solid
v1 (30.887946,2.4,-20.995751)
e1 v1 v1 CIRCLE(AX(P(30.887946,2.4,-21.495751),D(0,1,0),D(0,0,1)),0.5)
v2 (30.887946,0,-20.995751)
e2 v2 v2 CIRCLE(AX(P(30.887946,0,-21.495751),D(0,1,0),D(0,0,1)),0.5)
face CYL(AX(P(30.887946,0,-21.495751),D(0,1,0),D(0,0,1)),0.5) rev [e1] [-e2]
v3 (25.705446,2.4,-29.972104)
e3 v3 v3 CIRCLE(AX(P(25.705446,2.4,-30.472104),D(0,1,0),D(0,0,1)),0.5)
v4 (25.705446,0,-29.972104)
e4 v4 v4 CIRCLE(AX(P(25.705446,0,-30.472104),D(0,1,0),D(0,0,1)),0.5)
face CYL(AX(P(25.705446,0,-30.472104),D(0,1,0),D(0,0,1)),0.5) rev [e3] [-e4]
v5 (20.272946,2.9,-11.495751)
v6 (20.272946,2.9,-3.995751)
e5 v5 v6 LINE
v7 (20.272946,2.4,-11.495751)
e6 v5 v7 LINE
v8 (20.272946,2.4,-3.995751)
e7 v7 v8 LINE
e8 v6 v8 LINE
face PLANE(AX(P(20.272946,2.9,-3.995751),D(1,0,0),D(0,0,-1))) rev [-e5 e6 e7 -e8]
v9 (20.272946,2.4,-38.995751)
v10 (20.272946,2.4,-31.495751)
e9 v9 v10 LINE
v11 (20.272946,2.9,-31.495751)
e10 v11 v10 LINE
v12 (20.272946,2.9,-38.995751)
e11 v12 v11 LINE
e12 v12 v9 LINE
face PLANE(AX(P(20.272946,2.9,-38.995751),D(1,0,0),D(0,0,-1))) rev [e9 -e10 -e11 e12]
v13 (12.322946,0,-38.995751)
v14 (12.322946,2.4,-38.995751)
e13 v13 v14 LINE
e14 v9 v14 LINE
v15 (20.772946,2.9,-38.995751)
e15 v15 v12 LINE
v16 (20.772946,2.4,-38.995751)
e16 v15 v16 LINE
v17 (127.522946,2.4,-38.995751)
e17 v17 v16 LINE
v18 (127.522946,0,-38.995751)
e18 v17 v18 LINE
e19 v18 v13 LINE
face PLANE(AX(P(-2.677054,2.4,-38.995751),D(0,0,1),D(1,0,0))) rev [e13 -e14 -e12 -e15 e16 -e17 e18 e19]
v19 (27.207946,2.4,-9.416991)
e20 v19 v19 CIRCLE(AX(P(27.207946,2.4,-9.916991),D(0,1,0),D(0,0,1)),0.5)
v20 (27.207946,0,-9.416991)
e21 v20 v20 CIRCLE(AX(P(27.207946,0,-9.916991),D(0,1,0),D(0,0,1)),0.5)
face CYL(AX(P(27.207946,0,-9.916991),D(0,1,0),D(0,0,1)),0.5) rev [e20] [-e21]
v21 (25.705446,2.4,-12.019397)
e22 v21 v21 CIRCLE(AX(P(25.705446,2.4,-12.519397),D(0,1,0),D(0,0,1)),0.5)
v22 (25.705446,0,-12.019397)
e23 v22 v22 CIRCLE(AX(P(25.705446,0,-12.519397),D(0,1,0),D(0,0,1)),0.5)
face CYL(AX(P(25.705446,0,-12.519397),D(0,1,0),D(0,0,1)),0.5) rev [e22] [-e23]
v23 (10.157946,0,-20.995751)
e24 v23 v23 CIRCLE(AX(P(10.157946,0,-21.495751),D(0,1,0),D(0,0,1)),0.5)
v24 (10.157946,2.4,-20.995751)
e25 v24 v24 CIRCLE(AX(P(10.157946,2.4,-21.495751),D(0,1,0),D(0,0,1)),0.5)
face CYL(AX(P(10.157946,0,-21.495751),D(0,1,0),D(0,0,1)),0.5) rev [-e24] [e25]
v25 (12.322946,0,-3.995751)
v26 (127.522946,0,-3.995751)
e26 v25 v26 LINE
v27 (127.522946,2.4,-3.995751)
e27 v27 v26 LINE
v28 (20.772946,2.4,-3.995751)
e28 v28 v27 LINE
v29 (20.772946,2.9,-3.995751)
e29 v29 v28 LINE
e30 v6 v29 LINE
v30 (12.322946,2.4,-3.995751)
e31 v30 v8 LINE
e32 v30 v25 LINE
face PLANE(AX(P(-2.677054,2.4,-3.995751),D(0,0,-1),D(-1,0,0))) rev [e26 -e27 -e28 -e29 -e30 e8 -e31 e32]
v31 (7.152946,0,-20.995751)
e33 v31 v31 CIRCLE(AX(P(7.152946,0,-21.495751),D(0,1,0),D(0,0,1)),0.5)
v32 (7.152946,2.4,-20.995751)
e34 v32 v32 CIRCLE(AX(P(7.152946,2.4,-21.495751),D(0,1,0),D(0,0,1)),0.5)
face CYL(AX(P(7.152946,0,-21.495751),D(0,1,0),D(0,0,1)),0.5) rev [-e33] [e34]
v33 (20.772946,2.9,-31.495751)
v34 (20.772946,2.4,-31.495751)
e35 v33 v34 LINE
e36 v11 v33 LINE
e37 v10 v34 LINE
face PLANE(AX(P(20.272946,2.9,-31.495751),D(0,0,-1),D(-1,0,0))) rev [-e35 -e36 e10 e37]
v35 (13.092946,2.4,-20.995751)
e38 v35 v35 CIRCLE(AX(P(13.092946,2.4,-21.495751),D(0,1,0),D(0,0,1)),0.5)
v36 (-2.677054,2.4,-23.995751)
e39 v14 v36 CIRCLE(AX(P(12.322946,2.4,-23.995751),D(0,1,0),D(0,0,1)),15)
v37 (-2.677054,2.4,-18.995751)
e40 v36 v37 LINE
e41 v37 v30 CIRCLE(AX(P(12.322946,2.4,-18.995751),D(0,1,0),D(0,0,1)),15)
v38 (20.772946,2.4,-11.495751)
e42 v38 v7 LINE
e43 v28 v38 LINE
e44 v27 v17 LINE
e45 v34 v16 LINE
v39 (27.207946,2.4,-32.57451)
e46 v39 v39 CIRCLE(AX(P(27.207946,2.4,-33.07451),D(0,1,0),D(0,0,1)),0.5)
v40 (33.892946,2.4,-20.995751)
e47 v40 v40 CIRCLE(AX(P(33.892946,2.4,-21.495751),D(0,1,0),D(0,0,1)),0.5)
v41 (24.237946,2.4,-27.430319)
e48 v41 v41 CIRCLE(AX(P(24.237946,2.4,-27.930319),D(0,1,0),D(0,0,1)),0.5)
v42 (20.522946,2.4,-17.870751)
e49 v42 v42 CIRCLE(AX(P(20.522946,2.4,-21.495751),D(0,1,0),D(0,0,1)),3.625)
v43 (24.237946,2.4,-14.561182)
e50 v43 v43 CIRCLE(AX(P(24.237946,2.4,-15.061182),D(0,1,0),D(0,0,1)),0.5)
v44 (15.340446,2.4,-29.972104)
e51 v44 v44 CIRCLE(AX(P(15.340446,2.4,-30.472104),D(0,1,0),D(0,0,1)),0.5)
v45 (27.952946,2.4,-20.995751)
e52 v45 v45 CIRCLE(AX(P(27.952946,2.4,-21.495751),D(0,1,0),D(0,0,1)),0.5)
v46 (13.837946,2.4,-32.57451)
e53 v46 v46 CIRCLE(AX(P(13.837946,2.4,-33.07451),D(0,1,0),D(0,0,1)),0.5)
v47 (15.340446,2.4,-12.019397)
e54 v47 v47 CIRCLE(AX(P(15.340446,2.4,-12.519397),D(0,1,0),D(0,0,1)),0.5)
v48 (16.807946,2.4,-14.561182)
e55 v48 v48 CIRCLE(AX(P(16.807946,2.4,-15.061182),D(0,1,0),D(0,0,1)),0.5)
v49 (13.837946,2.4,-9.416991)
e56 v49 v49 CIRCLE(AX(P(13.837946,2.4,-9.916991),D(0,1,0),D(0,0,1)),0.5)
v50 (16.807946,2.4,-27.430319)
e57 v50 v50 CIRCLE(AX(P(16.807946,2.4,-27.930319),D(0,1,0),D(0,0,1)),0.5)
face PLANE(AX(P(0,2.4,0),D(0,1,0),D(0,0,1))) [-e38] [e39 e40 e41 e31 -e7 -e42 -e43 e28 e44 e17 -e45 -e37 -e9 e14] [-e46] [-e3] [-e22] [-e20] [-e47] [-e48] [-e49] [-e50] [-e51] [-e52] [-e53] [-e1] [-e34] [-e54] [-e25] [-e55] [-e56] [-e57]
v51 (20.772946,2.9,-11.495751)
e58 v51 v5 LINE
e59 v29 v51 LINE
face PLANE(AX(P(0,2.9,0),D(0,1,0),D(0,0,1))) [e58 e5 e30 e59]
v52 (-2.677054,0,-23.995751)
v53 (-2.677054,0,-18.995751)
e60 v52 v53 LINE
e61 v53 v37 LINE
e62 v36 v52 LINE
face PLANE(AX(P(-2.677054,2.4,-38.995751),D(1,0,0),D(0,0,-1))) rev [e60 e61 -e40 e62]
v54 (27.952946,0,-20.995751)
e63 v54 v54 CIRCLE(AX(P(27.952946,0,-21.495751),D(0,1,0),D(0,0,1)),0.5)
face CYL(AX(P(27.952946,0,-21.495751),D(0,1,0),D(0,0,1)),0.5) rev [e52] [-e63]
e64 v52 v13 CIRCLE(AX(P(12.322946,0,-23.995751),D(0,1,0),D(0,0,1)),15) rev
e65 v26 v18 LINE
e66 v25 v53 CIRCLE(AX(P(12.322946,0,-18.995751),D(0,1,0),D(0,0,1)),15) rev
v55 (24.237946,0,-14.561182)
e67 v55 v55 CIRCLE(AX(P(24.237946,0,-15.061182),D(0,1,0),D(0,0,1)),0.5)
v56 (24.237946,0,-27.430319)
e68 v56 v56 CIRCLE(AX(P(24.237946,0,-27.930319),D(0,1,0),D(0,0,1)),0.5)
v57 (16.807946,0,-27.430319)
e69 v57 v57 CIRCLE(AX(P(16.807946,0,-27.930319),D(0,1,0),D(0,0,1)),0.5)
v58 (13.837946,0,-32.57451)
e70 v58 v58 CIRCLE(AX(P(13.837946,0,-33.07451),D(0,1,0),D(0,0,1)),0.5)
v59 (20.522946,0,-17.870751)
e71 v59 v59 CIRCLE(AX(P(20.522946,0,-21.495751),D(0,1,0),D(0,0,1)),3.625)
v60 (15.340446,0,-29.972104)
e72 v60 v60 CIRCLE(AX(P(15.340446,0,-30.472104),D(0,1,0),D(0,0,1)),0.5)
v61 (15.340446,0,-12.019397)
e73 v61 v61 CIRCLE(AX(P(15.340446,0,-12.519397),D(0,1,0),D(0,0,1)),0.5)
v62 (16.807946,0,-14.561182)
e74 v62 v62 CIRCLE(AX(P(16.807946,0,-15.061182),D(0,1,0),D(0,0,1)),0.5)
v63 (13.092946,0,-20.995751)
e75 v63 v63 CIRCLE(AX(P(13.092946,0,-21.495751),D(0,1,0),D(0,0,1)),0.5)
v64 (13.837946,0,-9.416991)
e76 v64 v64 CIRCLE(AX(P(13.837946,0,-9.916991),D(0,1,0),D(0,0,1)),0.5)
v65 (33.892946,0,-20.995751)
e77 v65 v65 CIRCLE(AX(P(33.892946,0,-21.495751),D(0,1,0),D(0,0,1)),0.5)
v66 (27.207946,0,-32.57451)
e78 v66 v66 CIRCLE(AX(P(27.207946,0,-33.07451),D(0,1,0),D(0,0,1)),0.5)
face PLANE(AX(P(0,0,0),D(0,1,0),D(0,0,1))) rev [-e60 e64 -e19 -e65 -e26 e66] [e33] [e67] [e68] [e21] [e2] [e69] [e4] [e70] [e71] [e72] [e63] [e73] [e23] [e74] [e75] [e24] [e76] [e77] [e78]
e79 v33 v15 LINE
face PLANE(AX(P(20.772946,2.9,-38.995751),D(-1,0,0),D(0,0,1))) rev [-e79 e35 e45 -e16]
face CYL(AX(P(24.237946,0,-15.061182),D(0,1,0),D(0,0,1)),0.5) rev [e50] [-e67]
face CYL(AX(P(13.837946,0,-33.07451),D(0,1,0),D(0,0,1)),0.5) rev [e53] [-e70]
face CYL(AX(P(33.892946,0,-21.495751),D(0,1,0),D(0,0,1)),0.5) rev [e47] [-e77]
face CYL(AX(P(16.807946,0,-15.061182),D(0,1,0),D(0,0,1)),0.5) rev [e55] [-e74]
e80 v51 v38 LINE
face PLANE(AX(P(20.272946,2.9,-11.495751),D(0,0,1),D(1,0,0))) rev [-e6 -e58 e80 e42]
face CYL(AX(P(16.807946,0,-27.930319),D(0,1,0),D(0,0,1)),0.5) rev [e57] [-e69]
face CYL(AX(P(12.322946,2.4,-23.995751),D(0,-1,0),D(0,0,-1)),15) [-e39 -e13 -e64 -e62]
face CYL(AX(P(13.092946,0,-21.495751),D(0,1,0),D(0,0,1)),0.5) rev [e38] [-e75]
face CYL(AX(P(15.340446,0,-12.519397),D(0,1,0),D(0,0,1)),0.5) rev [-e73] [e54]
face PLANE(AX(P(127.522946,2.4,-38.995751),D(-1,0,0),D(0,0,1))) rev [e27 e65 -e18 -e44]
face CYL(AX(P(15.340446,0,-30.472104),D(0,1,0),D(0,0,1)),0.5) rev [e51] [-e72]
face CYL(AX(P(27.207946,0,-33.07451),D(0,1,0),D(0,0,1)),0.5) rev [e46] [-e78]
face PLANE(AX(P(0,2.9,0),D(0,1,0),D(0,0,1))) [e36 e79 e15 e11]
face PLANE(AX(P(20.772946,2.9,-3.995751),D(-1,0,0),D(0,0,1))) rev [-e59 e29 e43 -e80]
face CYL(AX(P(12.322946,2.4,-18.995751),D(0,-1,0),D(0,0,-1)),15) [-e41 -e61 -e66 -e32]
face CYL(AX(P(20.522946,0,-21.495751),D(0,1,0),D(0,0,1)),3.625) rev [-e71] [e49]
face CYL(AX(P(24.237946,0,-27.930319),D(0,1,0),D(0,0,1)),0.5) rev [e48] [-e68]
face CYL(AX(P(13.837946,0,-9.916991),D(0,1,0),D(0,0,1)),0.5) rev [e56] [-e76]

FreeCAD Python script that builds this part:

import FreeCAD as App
import Part
import Sketcher


def edges_at(feature, points):
    """Names of the edges that pass closest to the given points."""
    edges = feature.Shape.Edges
    near = lambda p: min(range(len(edges)), key=lambda i: edges[i].distToShape(Part.Vertex(*p))[0])
    return sorted({f"Edge{near(p) + 1}" for p in points})

doc = App.newDocument("Part")
params = doc.addObject("Spreadsheet::Sheet", "Params")
for row, (alias, value) in enumerate([
    ("sketch1_height", "35 mm"),
    ("sketch1_width", "130.2 mm"),
    ("pad1_length", "2.4 mm"),
    ("sketch2_diameter", "1 mm"),
    ("sketch2_diameter2", "7.25 mm"),
    ("pocket1_length", "2.4 mm"),
    ("sketch3_width", "0.5 mm"),
    ("sketch3_height", "7.5 mm"),
    ("pad2_length", "0.5 mm"),
    ("fillet_radius", "15 mm"),
], start=1):
    params.set(f"A{row}", alias)
    params.set(f"B{row}", "=" + value)
    params.setAlias(f"B{row}", alias)

body = doc.addObject("PartDesign::Body", "Body")

# Sketch on XZ plane
sketch1 = doc.addObject("Sketcher::SketchObject", "Sketch")
body.addObject(sketch1)
sketch1.AttachmentSupport = (doc.XZ_Plane, [""])
sketch1.MapMode = "FlatFace"
sketch1.addGeometry([
    Part.LineSegment(App.Vector(-3, -39, 0), App.Vector(-3, -4, 0)),
    Part.LineSegment(App.Vector(-3, -4, 0), App.Vector(128, -4, 0)),
    Part.LineSegment(App.Vector(128, -4, 0), App.Vector(128, -39, 0)),
    Part.LineSegment(App.Vector(128, -39, 0), App.Vector(-3, -39, 0)),
], False)
sketch1.addConstraint([
    Sketcher.Constraint("Coincident", 0, 2, 1, 1),
    Sketcher.Constraint("Coincident", 1, 2, 2, 1),
    Sketcher.Constraint("Coincident", 2, 2, 3, 1),
    Sketcher.Constraint("Coincident", 3, 2, 0, 1),
    Sketcher.Constraint("Vertical", 0),
    Sketcher.Constraint("Horizontal", 1),
    Sketcher.Constraint("Vertical", 2),
    Sketcher.Constraint("Horizontal", 3),
    Sketcher.Constraint("DistanceY", 0, 1, 0, 2, 35.0),
    Sketcher.Constraint("DistanceX", 1, 1, 1, 2, 130.2),
    Sketcher.Constraint("DistanceY", 0, 2, -1, 1, 3.995751),
    Sketcher.Constraint("DistanceX", 0, 2, -1, 1, 2.677054),
])
sketch1.setExpression("Constraints[8]", "Params.sketch1_height")
sketch1.setExpression("Constraints[9]", "Params.sketch1_width")
pad1 = doc.addObject("PartDesign::Pad", "Pad")
body.addObject(pad1)
pad1.Profile = sketch1
pad1.setExpression("Length", "Params.pad1_length")
pad1.Reversed = True

# Sketch on XZ plane
sketch2 = doc.addObject("Sketcher::SketchObject", "Sketch001")
body.addObject(sketch2)
sketch2.AttachmentSupport = (doc.XZ_Plane, [""])
sketch2.MapMode = "FlatFace"
sketch2.AttachmentOffset = App.Placement(App.Vector(0, 0, -2.4), App.Rotation())
sketch2.addGeometry([
    Part.Circle(App.Vector(16.8, -27.9, 0), App.Vector(0, 0, 1), 0.5),  # 0
    Part.Circle(App.Vector(15.3, -30.5, 0), App.Vector(0, 0, 1), 0.5),  # 1
    Part.Circle(App.Vector(13.8, -33.1, 0), App.Vector(0, 0, 1), 0.5),  # 2
    Part.Circle(App.Vector(24.2, -27.9, 0), App.Vector(0, 0, 1), 0.5),  # 3
    Part.Circle(App.Vector(20.5, -21.5, 0), App.Vector(0, 0, 1), 3.6),  # 4
    Part.Circle(App.Vector(13.1, -21.5, 0), App.Vector(0, 0, 1), 0.5),  # 5
    Part.Circle(App.Vector(10.2, -21.5, 0), App.Vector(0, 0, 1), 0.5),  # 6
    Part.Circle(App.Vector(7.2, -21.5, 0), App.Vector(0, 0, 1), 0.5),  # 7
    Part.Circle(App.Vector(25.7, -30.5, 0), App.Vector(0, 0, 1), 0.5),  # 8
    Part.Circle(App.Vector(27.2, -33.1, 0), App.Vector(0, 0, 1), 0.5),  # 9
    Part.Circle(App.Vector(28, -21.5, 0), App.Vector(0, 0, 1), 0.5),  # 10
    Part.Circle(App.Vector(30.9, -21.5, 0), App.Vector(0, 0, 1), 0.5),  # 11
    Part.Circle(App.Vector(33.9, -21.5, 0), App.Vector(0, 0, 1), 0.5),  # 12
    Part.Circle(App.Vector(24.2, -15.1, 0), App.Vector(0, 0, 1), 0.5),  # 13
    Part.Circle(App.Vector(25.7, -12.5, 0), App.Vector(0, 0, 1), 0.5),  # 14
    Part.Circle(App.Vector(27.2, -9.9, 0), App.Vector(0, 0, 1), 0.5),  # 15
    Part.Circle(App.Vector(16.8, -15.1, 0), App.Vector(0, 0, 1), 0.5),  # 16
    Part.Circle(App.Vector(15.3, -12.5, 0), App.Vector(0, 0, 1), 0.5),  # 17
    Part.Circle(App.Vector(13.8, -9.9, 0), App.Vector(0, 0, 1), 0.5),  # 18
], False)
sketch2.addConstraint([
    Sketcher.Constraint("Equal", 0, 1),
    Sketcher.Constraint("Equal", 1, 2),
    Sketcher.Constraint("Equal", 2, 3),
    Sketcher.Constraint("Equal", 3, 5),
    Sketcher.Constraint("Equal", 5, 6),
    Sketcher.Constraint("Equal", 6, 7),
    Sketcher.Constraint("Equal", 7, 8),
    Sketcher.Constraint("Equal", 8, 9),
    Sketcher.Constraint("Equal", 9, 10),
    Sketcher.Constraint("Equal", 10, 11),
    Sketcher.Constraint("Equal", 11, 12),
    Sketcher.Constraint("Equal", 12, 13),
    Sketcher.Constraint("Equal", 13, 14),
    Sketcher.Constraint("Equal", 14, 15),
    Sketcher.Constraint("Equal", 15, 16),
    Sketcher.Constraint("Equal", 16, 17),
    Sketcher.Constraint("Equal", 17, 18),
    Sketcher.Constraint("Horizontal", 0, 3, 3, 3),
    Sketcher.Constraint("Horizontal", 4, 3, 5, 3),
    Sketcher.Constraint("Horizontal", 5, 3, 6, 3),
    Sketcher.Constraint("Horizontal", 6, 3, 7, 3),
    Sketcher.Constraint("Horizontal", 1, 3, 8, 3),
    Sketcher.Constraint("Horizontal", 2, 3, 9, 3),
    Sketcher.Constraint("Horizontal", 7, 3, 10, 3),
    Sketcher.Constraint("Horizontal", 10, 3, 11, 3),
    Sketcher.Constraint("Horizontal", 11, 3, 12, 3),
    Sketcher.Constraint("Horizontal", 13, 3, 16, 3),
    Sketcher.Constraint("Horizontal", 14, 3, 17, 3),
    Sketcher.Constraint("Horizontal", 15, 3, 18, 3),
    Sketcher.Constraint("Vertical", 3, 3, 13, 3),
    Sketcher.Constraint("Vertical", 8, 3, 14, 3),
    Sketcher.Constraint("Vertical", 9, 3, 15, 3),
    Sketcher.Constraint("Vertical", 0, 3, 16, 3),
    Sketcher.Constraint("Vertical", 1, 3, 17, 3),
    Sketcher.Constraint("Vertical", 2, 3, 18, 3),
    Sketcher.Constraint("Diameter", 0, 1.0),
    Sketcher.Constraint("Diameter", 4, 7.25),
    Sketcher.Constraint("DistanceX", 2, 3, 3, 3, 10.4),
    Sketcher.Constraint("DistanceX", 0, 3, 9, 3, 10.4),
    Sketcher.Constraint("DistanceX", 2, 3, 0, 3, 2.97),
    Sketcher.Constraint("DistanceX", 5, 3, 4, 3, 7.43),
    Sketcher.Constraint("DistanceX", 6, 3, 0, 3, 6.65),
    Sketcher.Constraint("DistanceX", 7, 3, 5, 3, 5.94),
    Sketcher.Constraint("DistanceX", 4, 3, 10, 3, 7.43),
    Sketcher.Constraint("DistanceX", 3, 3, 11, 3, 6.65),
    Sketcher.Constraint("DistanceX", 10, 3, 12, 3, 5.94),
    Sketcher.Constraint("DistanceX", 0, 3, 4, 3, 3.715),
    Sketcher.Constraint("DistanceX", 1, 3, 8, 3, 10.365),
    Sketcher.Constraint("DistanceX", 1, 3, 0, 3, 1.4675),
    Sketcher.Constraint("DistanceY", 0, 3, -1, 1, 27.930319),
    Sketcher.Constraint("DistanceY", 2, 3, -1, 1, 33.07451),
    Sketcher.Constraint("DistanceY", 4, 3, -1, 1, 21.495751),
    Sketcher.Constraint("DistanceY", 13, 3, -1, 1, 15.061182),
    Sketcher.Constraint("DistanceY", 15, 3, -1, 1, 9.916991),
    Sketcher.Constraint("DistanceX", -1, 1, 0, 3, 16.807946),
    Sketcher.Constraint("DistanceY", 1, 3, -1, 1, 30.472104),
    Sketcher.Constraint("DistanceY", 14, 3, -1, 1, 12.519397),
])
sketch2.setExpression("Constraints[35]", "Params.sketch2_diameter")
sketch2.setExpression("Constraints[36]", "Params.sketch2_diameter2")
pocket1 = doc.addObject("PartDesign::Pocket", "Pocket")
body.addObject(pocket1)
pocket1.Profile = sketch2
pocket1.setExpression("Length", "Params.pocket1_length")
pocket1.Reversed = True

# Sketch on XZ plane
sketch3 = doc.addObject("Sketcher::SketchObject", "Sketch002")
body.addObject(sketch3)
sketch3.AttachmentSupport = (doc.XZ_Plane, [""])
sketch3.MapMode = "FlatFace"
sketch3.AttachmentOffset = App.Placement(App.Vector(0, 0, -2.4), App.Rotation())
sketch3.addGeometry([
    Part.LineSegment(App.Vector(20.3, -11.5, 0), App.Vector(20.3, -4, 0)),  # 0
    Part.LineSegment(App.Vector(20.3, -4, 0), App.Vector(20.8, -4, 0)),  # 1
    Part.LineSegment(App.Vector(20.8, -4, 0), App.Vector(20.8, -11.5, 0)),  # 2
    Part.LineSegment(App.Vector(20.8, -11.5, 0), App.Vector(20.3, -11.5, 0)),  # 3
    Part.LineSegment(App.Vector(20.3, -39, 0), App.Vector(20.3, -31.5, 0)),  # 4
    Part.LineSegment(App.Vector(20.3, -31.5, 0), App.Vector(20.8, -31.5, 0)),  # 5
    Part.LineSegment(App.Vector(20.8, -31.5, 0), App.Vector(20.8, -39, 0)),  # 6
    Part.LineSegment(App.Vector(20.8, -39, 0), App.Vector(20.3, -39, 0)),  # 7
], False)
sketch3.addConstraint([
    Sketcher.Constraint("Coincident", 0, 2, 1, 1),
    Sketcher.Constraint("Coincident", 1, 2, 2, 1),
    Sketcher.Constraint("Coincident", 2, 2, 3, 1),
    Sketcher.Constraint("Coincident", 3, 2, 0, 1),
    Sketcher.Constraint("Coincident", 4, 2, 5, 1),
    Sketcher.Constraint("Coincident", 5, 2, 6, 1),
    Sketcher.Constraint("Coincident", 6, 2, 7, 1),
    Sketcher.Constraint("Coincident", 7, 2, 4, 1),
    Sketcher.Constraint("Vertical", 0),
    Sketcher.Constraint("Horizontal", 1),
    Sketcher.Constraint("Vertical", 2),
    Sketcher.Constraint("Horizontal", 3),
    Sketcher.Constraint("Vertical", 4),
    Sketcher.Constraint("Horizontal", 5),
    Sketcher.Constraint("Vertical", 6),
    Sketcher.Constraint("Horizontal", 7),
    Sketcher.Constraint("Vertical", 3, 2, 4, 2),
    Sketcher.Constraint("Vertical", 2, 2, 5, 2),
    Sketcher.Constraint("Equal", 2, 4),
    Sketcher.Constraint("DistanceX", 1, 1, 1, 2, 0.5),
    Sketcher.Constraint("DistanceY", 0, 1, 0, 2, 7.5),
    Sketcher.Constraint("DistanceY", 4, 2, 3, 2, 20.0),
    Sketcher.Constraint("DistanceY", 0, 2, -1, 1, 3.995751),
    Sketcher.Constraint("DistanceX", -1, 1, 0, 2, 20.272946),
])
sketch3.setExpression("Constraints[19]", "Params.sketch3_width")
sketch3.setExpression("Constraints[20]", "Params.sketch3_height")
pad2 = doc.addObject("PartDesign::Pad", "Pad001")
body.addObject(pad2)
pad2.Profile = sketch3
pad2.setExpression("Length", "Params.pad2_length")
pad2.Reversed = True
doc.recompute()

fillet = doc.addObject("PartDesign::Fillet", "Fillet")
body.addObject(fillet)
fillet.Base = (pad2, edges_at(pad2, [(-2.677, 1.2, -38.996), (-2.677, 1.2, -3.996)]))
fillet.setExpression("Radius", "Params.fillet_radius")

doc.recompute()
